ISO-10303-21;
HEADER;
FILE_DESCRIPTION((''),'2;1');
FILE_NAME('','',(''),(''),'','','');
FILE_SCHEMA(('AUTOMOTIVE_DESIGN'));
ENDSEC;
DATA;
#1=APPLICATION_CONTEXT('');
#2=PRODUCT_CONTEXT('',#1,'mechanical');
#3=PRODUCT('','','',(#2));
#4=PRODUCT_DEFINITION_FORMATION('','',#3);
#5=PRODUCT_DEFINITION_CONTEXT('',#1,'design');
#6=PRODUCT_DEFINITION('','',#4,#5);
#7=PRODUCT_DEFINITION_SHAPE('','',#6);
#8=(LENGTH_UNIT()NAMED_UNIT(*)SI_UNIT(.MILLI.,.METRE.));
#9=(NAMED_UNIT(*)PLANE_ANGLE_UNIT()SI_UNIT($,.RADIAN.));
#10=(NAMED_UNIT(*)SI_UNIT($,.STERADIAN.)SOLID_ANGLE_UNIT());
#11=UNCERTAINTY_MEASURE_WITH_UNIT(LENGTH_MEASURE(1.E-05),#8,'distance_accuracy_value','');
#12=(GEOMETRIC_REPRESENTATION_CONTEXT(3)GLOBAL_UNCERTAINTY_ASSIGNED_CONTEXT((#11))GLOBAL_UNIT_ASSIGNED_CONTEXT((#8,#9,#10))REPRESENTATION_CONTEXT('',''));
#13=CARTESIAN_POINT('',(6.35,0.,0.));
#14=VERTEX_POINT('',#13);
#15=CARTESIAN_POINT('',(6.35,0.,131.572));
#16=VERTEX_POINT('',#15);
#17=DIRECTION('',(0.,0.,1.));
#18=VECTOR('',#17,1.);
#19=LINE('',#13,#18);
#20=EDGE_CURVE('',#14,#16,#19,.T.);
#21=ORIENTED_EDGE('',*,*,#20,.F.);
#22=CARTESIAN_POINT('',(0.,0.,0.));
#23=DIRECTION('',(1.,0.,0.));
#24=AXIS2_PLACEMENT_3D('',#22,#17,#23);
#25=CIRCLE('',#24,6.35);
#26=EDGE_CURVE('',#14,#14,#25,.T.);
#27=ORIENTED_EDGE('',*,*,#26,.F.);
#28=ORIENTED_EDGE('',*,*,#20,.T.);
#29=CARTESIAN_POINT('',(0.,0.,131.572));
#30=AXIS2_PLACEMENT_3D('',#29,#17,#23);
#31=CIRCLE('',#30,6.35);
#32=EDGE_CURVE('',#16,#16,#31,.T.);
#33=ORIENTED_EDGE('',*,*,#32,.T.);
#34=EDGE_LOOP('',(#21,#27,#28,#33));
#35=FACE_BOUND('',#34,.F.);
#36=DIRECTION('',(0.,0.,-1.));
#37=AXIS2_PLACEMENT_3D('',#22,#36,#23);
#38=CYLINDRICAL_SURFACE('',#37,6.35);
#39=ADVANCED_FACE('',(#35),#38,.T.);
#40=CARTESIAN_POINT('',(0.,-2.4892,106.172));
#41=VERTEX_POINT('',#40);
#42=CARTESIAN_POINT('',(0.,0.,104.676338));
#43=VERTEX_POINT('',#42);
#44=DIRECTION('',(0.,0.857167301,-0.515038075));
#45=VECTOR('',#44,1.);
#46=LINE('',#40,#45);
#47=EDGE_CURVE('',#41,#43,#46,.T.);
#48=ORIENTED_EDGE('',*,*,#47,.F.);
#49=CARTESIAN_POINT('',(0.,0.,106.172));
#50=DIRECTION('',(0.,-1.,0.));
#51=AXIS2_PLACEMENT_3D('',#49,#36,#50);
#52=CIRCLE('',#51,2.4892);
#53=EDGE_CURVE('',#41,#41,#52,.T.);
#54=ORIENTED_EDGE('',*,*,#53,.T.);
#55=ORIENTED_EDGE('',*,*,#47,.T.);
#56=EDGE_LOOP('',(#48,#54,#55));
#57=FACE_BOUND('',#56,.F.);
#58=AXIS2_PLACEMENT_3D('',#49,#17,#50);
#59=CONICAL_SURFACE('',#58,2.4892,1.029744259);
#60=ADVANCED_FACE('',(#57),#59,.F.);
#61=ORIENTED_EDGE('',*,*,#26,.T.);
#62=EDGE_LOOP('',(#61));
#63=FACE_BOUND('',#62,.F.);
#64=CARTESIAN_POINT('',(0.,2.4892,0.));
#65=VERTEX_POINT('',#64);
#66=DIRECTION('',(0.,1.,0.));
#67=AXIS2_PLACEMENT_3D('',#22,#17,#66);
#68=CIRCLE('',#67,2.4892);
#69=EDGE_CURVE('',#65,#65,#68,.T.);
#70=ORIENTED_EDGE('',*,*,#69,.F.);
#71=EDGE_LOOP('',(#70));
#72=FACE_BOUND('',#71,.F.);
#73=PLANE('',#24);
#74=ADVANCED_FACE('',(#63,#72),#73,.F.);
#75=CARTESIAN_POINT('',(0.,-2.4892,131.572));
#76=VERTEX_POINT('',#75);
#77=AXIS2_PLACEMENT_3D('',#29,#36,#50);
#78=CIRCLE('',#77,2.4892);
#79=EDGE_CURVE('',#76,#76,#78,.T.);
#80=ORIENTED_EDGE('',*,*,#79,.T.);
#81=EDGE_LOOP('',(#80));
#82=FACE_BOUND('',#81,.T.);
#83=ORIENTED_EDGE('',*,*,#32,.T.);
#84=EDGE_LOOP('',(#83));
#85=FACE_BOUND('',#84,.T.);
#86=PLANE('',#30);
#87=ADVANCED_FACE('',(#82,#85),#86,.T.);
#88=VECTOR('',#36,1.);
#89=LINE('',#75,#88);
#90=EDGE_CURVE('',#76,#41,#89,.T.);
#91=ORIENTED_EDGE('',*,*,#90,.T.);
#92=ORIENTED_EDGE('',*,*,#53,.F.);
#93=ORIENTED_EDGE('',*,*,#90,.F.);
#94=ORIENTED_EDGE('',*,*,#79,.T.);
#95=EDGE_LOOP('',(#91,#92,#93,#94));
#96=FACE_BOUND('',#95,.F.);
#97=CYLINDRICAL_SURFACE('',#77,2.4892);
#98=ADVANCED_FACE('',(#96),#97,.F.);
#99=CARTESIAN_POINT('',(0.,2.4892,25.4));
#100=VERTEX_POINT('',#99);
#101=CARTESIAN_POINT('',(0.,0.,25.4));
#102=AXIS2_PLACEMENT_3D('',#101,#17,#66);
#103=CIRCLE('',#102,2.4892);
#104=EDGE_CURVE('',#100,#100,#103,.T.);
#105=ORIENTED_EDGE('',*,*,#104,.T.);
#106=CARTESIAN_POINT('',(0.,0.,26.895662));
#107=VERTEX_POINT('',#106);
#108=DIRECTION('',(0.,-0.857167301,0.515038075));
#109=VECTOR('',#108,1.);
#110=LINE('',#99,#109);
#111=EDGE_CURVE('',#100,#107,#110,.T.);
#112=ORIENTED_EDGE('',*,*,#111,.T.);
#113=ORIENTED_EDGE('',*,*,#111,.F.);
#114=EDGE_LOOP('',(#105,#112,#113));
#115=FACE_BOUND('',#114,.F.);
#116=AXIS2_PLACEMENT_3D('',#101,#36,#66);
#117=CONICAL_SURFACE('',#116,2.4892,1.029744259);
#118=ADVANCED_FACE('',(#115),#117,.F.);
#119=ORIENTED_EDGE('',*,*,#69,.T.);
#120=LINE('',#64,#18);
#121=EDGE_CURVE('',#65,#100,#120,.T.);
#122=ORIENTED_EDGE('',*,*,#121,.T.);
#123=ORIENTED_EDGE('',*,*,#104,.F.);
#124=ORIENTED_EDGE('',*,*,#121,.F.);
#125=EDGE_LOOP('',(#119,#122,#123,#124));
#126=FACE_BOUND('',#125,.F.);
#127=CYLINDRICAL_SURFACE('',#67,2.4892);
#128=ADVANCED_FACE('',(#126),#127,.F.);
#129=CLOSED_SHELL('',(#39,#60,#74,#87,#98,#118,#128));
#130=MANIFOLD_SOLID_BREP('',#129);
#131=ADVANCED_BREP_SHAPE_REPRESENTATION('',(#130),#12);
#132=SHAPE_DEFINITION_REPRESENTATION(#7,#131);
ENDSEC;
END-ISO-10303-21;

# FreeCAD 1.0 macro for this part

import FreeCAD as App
import Part
import Sketcher

V = App.Vector
Q = App.Units.Quantity

doc = App.newDocument("Part")
body = doc.addObject("PartDesign::Body", "Body")

sketch1 = body.newObject("Sketcher::SketchObject", "Sketch")
sketch1.AttachmentSupport = (doc.getObject("XY_Plane"), [""])
sketch1.MapMode = "FlatFace"
sketch1.addGeometry(Part.Circle(V(0, 0, 0), V(0, 0, 1), 6.35), False)
sketch1.addConstraint([
    Sketcher.Constraint("Coincident", 0, 3, -1, 1),
    Sketcher.Constraint("Diameter", 0, Q("0.5 in")),
])
pad1 = body.newObject("PartDesign::Pad", "Pad")
pad1.Profile = sketch1
pad1.Length = Q("5.18 in")

sketch2 = body.newObject("Sketcher::SketchObject", "Sketch001")
sketch2.AttachmentSupport = (doc.getObject("XY_Plane"), [""])
sketch2.MapMode = "FlatFace"
sketch2.AttachmentOffset = App.Placement(V(0, 0, 5.18 * 25.4), App.Rotation())
sketch2.addGeometry(Part.Circle(V(0, 0, 0), V(0, 0, 1), 2.4892), False)
sketch2.addConstraint([
    Sketcher.Constraint("Coincident", 0, 3, -1, 1),
    Sketcher.Constraint("Diameter", 0, Q("0.196 in")),
])
doc.recompute()
hole = body.newObject("PartDesign::Hole", "Hole")
hole.Profile = sketch2
hole.ThreadType = "None"
hole.Diameter = Q("0.196 in")
hole.DepthType = "Dimension"
hole.Depth = Q("1 in")
hole.DrillPoint = "Angled"
hole.DrillPointAngle = 118

sketch3 = body.newObject("Sketcher::SketchObject", "Sketch002")
sketch3.AttachmentSupport = (doc.getObject("XY_Plane"), [""])
sketch3.MapMode = "FlatFace"
sketch3.addGeometry(Part.Circle(V(0, 0, 0), V(0, 0, 1), 2.4892), False)
sketch3.addConstraint([
    Sketcher.Constraint("Coincident", 0, 3, -1, 1),
    Sketcher.Constraint("Diameter", 0, Q("0.196 in")),
])
doc.recompute()
hole2 = body.newObject("PartDesign::Hole", "Hole001")
hole2.Profile = sketch3
hole2.ThreadType = "None"
hole2.Diameter = Q("0.196 in")
hole2.DepthType = "Dimension"
hole2.Depth = Q("1 in")
hole2.DrillPoint = "Angled"
hole2.DrillPointAngle = 118
hole2.Reversed = True

doc.recompute()
